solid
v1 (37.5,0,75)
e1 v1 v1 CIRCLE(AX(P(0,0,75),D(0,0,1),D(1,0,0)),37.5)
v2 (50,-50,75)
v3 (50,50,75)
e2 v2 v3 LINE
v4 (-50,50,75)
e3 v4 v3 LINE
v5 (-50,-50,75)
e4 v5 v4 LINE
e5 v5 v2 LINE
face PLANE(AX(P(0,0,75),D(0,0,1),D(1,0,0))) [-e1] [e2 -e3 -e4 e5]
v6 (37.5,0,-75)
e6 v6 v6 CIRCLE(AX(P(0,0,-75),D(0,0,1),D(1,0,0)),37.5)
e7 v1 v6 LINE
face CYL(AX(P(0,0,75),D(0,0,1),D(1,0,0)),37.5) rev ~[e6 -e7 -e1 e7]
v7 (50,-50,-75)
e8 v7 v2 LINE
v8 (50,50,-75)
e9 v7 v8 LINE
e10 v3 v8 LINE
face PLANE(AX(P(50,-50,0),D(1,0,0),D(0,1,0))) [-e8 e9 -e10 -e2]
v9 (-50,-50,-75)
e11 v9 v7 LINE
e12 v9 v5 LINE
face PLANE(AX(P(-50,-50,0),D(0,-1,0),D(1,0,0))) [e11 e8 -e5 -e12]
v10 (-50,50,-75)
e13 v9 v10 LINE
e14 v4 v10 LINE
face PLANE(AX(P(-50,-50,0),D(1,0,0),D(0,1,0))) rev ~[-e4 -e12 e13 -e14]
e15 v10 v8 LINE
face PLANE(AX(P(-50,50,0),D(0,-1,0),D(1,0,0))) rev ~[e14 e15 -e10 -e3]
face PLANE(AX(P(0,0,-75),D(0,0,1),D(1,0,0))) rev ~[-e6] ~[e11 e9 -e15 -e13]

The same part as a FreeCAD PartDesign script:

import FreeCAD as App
import Part
import Sketcher
from FreeCAD import Vector

doc = App.newDocument("Part")
body = doc.addObject("PartDesign::Body", "Body")

# Sketch on XY plane
sketch1 = doc.addObject("Sketcher::SketchObject", "Sketch")
body.addObject(sketch1)
sketch1.AttachmentSupport = (doc.XY_Plane, [""])
sketch1.MapMode = "FlatFace"
sketch1.addGeometry([
    Part.LineSegment(Vector(-50, 50, 0), Vector(-50, -50, 0)),
    Part.LineSegment(Vector(-50, -50, 0), Vector(50, -50, 0)),
    Part.LineSegment(Vector(50, -50, 0), Vector(50, 50, 0)),
    Part.LineSegment(Vector(50, 50, 0), Vector(-50, 50, 0)),
], False)
sketch1.addConstraint([
    Sketcher.Constraint("Coincident", 0, 2, 1, 1),
    Sketcher.Constraint("Coincident", 1, 2, 2, 1),
    Sketcher.Constraint("Coincident", 2, 2, 3, 1),
    Sketcher.Constraint("Coincident", 3, 2, 0, 1),
    Sketcher.Constraint("Vertical", 0),
    Sketcher.Constraint("Horizontal", 1),
    Sketcher.Constraint("Vertical", 2),
    Sketcher.Constraint("Horizontal", 3),
    Sketcher.Constraint("Symmetric", 0, 2, 2, 2, -1, 1),
    Sketcher.Constraint("Equal", 3, 0),
    Sketcher.Constraint("DistanceX", 1, 1, 1, 2, 100.0),
])
pad1 = doc.addObject("PartDesign::Pad", "Pad")
body.addObject(pad1)
pad1.Profile = sketch1
pad1.Length = 150
pad1.Midplane = True

# Sketch on XY plane
sketch2 = doc.addObject("Sketcher::SketchObject", "Sketch001")
body.addObject(sketch2)
sketch2.AttachmentSupport = (doc.XY_Plane, [""])
sketch2.MapMode = "FlatFace"
sketch2.AttachmentOffset = App.Placement(Vector(0, 0, 75), App.Rotation())
sketch2.addGeometry(Part.Circle(Vector(0, 0, 0), Vector(0, 0, 1), 37.5), False)
sketch2.addConstraint([
    Sketcher.Constraint("Coincident", 0, 3, -1, 1),
    Sketcher.Constraint("Diameter", 0, 75.0),
])
pocket1 = doc.addObject("PartDesign::Pocket", "Pocket")
body.addObject(pocket1)
pocket1.Profile = sketch2
pocket1.Type = "ThroughAll"

doc.recompute()
